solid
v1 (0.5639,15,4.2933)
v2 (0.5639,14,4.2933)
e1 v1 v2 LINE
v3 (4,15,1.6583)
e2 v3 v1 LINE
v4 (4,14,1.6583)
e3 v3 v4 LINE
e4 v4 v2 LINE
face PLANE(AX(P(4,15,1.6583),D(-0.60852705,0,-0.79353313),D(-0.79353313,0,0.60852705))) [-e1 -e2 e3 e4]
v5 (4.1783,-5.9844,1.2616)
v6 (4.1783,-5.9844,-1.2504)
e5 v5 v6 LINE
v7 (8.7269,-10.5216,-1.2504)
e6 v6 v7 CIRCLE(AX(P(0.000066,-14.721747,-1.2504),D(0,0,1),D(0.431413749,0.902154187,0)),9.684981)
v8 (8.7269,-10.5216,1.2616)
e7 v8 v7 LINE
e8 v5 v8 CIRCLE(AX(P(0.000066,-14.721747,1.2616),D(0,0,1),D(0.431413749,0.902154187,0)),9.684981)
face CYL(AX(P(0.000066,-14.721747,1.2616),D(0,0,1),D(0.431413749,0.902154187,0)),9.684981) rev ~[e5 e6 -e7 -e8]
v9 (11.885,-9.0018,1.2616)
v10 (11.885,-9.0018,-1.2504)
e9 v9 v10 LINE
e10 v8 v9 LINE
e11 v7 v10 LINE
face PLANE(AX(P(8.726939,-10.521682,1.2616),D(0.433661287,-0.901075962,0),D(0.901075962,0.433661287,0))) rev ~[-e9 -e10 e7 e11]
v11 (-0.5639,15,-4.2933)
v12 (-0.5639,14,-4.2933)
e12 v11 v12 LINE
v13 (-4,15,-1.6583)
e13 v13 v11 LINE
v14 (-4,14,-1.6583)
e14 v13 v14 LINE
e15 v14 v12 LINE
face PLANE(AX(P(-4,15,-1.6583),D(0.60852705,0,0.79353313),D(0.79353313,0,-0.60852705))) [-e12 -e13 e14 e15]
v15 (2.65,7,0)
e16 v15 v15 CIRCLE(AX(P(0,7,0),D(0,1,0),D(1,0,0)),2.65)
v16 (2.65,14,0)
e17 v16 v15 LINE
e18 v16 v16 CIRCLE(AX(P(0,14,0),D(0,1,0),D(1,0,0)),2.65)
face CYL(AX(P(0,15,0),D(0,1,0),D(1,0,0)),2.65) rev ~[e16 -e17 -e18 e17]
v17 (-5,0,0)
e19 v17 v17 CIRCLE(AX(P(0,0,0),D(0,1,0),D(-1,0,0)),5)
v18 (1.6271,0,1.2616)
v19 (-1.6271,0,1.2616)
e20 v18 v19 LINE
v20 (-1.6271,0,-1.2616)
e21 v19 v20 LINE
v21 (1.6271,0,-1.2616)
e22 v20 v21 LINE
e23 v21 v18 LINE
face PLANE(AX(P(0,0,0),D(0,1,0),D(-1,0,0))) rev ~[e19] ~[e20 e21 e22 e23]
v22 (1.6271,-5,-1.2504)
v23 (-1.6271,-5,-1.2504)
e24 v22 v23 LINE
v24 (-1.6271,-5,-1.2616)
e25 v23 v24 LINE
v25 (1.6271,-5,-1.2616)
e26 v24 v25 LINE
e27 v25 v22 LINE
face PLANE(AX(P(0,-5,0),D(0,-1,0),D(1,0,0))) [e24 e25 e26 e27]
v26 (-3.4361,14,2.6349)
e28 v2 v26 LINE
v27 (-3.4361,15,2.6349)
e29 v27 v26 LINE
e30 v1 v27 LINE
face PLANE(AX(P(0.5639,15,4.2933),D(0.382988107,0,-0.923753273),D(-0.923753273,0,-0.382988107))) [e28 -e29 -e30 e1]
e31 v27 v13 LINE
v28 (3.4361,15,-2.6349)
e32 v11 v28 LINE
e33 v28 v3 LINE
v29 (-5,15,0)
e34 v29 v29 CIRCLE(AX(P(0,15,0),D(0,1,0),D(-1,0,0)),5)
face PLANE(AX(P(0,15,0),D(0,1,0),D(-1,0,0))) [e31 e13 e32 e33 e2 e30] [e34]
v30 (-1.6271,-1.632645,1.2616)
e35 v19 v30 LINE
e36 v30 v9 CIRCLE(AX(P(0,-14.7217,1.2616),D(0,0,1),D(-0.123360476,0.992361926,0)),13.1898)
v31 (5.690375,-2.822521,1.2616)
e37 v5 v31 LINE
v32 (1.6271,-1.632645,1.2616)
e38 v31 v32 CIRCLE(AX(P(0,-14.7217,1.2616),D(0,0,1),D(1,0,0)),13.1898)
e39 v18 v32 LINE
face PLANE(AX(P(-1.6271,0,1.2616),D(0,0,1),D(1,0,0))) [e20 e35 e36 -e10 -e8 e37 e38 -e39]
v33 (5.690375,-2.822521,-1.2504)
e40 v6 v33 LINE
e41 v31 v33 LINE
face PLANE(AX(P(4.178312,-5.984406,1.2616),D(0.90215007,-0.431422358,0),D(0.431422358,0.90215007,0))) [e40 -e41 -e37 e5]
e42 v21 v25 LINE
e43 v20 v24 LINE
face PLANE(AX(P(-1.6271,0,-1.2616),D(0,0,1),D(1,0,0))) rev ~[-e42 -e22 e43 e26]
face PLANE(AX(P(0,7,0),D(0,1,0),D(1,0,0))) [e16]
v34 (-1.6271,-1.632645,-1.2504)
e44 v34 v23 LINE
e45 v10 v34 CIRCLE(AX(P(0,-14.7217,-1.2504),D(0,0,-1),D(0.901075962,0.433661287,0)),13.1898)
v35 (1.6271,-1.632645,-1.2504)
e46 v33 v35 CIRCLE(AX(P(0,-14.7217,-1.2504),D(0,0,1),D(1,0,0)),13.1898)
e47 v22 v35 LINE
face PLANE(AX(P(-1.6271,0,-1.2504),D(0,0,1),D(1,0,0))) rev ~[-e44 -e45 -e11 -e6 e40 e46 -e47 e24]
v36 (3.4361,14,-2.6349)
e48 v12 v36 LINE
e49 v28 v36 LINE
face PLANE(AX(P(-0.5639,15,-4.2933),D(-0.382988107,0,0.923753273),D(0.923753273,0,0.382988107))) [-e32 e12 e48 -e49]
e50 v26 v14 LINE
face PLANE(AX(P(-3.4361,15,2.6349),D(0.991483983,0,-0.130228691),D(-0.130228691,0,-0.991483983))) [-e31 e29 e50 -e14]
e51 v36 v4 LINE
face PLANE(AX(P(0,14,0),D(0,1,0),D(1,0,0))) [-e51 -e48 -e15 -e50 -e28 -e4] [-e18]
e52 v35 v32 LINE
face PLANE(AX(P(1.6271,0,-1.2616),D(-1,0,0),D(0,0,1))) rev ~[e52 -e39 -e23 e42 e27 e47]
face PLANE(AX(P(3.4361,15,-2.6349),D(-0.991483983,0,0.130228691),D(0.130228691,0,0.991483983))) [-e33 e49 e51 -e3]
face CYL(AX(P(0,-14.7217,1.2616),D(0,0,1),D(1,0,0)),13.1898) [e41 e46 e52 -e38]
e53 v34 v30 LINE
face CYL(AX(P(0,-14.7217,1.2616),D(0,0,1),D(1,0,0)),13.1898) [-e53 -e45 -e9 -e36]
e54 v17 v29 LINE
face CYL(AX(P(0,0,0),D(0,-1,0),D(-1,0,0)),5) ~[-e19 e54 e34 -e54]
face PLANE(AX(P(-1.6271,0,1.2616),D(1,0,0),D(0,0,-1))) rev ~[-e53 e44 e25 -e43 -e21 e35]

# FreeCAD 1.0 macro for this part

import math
import FreeCAD as App
import Part
import Sketcher
from FreeCAD import Vector
Q = App.Units.Quantity


def add_polygon(sketch, points):
    """Adds a closed chain of lines whose ends are joined by coincident constraints."""
    first, n = sketch.GeometryCount, len(points)
    for a, b in zip(points, points[1:] + points[:1]):
        sketch.addGeometry(Part.LineSegment(App.Vector(*a, 0), App.Vector(*b, 0)), False)
    for i in range(n):
        sketch.addConstraint(Sketcher.Constraint("Coincident", first + i, 2, first + (i + 1) % n, 1))

doc = App.newDocument("Part")
body = doc.addObject("PartDesign::Body", "Body")

# Sketch on XZ plane
sketch1 = body.newObject("Sketcher::SketchObject", "Sketch")
sketch1.AttachmentSupport = (doc.getObject("XZ_Plane"), [""])
sketch1.MapMode = "FlatFace"
sketch1.addGeometry(Part.Circle(Vector(0, 0, 0), Vector(0, 0, 1), 5), False)
sketch1.addConstraint([
    Sketcher.Constraint("Coincident", 0, 3, -1, 1),
    Sketcher.Constraint("Diameter", 0, Q("10 mm")),
])
pad1 = body.newObject("PartDesign::Pad", "Pad")
pad1.Profile = sketch1
pad1.Length = 15
pad1.Reversed = True

# Sketch on XZ plane
sketch2 = body.newObject("Sketcher::SketchObject", "Sketch001")
sketch2.AttachmentSupport = (doc.getObject("XZ_Plane"), [""])
sketch2.MapMode = "FlatFace"
sketch2.AttachmentOffset = App.Placement(Vector(0, 0, -15), App.Rotation())
sketch2.addGeometry(Part.Circle(Vector(0, 0, 0), Vector(0, 0, 1), 2.65), False)
sketch2.addConstraint([
    Sketcher.Constraint("Coincident", 0, 3, -1, 1),
    Sketcher.Constraint("Diameter", 0, Q("5.3 mm")),
])
pocket1 = body.newObject("PartDesign::Pocket", "Pocket")
pocket1.Profile = sketch2
pocket1.Length = 8
pocket1.Reversed = True

# Sketch on XZ plane
sketch3 = body.newObject("Sketcher::SketchObject", "Sketch002")
sketch3.AttachmentSupport = (doc.getObject("XZ_Plane"), [""])
sketch3.MapMode = "FlatFace"
add_polygon(sketch3, [(-1.6271, 1.2616), (-1.6271, -1.2616), (1.6271, -1.2616), (1.6271, 1.2616)])  # lines 0-3
sketch3.addConstraint([
    Sketcher.Constraint("Vertical", 0),
    Sketcher.Constraint("Horizontal", 1),
    Sketcher.Constraint("Vertical", 2),
    Sketcher.Constraint("Horizontal", 3),
    Sketcher.Constraint("Symmetric", 0, 2, 2, 2, -1, 1),
    Sketcher.Constraint("DistanceX", 1, 1, 1, 2, Q("3.2542 mm")),
    Sketcher.Constraint("DistanceY", 0, 2, 0, 1, Q("2.5232 mm")),
])
pad2 = body.newObject("PartDesign::Pad", "Pad001")
pad2.Profile = sketch3
pad2.Length = 5

# Sketch on XY plane
sketch4 = body.newObject("Sketcher::SketchObject", "Sketch003")
sketch4.AttachmentSupport = (doc.getObject("XY_Plane"), [""])
sketch4.MapMode = "FlatFace"
sketch4.AttachmentOffset = App.Placement(Vector(0, 0, 1.2616), App.Rotation())
sketch4.addGeometry([
    Part.ArcOfCircle(Part.Circle(Vector(0, -14.7217, 0), Vector(0, 0, 1), 13.1898), math.radians(64.44214), math.radians(385.70014)),
    Part.LineSegment(Vector(11.885, -9.0018, 0), Vector(8.726939, -10.521682, 0)),
    Part.ArcOfCircle(Part.Circle(Vector(0, -14.7217, 0), Vector(0, 0, 1), 9.684968), math.radians(64.442216), math.radians(385.700675)),
    Part.LineSegment(Vector(4.178312, -5.984406, 0), Vector(5.690375, -2.822521, 0)),
], False)
sketch4.addConstraint([
    Sketcher.Constraint("Coincident", 0, 2, 1, 1),
    Sketcher.Constraint("Coincident", 1, 2, 2, 2),
    Sketcher.Constraint("Coincident", 2, 1, 3, 1),
    Sketcher.Constraint("Coincident", 3, 2, 0, 1),
    Sketcher.Constraint("Coincident", 2, 3, 0, 3),
    Sketcher.Constraint("PointOnObject", 0, 3, -2),
    Sketcher.Constraint("Angle", 1, Q("-154.2999 deg")),
    Sketcher.Constraint("Radius", 2, Q("9.685 mm")),
    Sketcher.Constraint("Radius", 0, Q("13.1898 mm")),
    Sketcher.Constraint("DistanceY", 0, 3, 1, 2, Q("4.2 mm")),
    Sketcher.Constraint("DistanceX", 2, 1, 3, 2, Q("1.512 mm")),
    Sketcher.Constraint("DistanceY", 0, 3, -1, 1, Q("14.7217 mm")),
    Sketcher.Constraint("DistanceX", -1, 1, 2, 1, Q("4.1783 mm")),
])
pad3 = body.newObject("PartDesign::Pad", "Pad002")
pad3.Profile = sketch4
pad3.Length = 2.512
pad3.Reversed = True

# Sketch on XZ plane
sketch5 = body.newObject("Sketcher::SketchObject", "Sketch004")
sketch5.AttachmentSupport = (doc.getObject("XZ_Plane"), [""])
sketch5.MapMode = "FlatFace"
sketch5.AttachmentOffset = App.Placement(Vector(0, 0, -15), App.Rotation())
add_polygon(sketch5, [(-0.5639, -4.2933), (-4, -1.6583), (-3.4361, 2.6349), (0.5639, 4.2933), (4, 1.6583), (3.4361, -2.6349)])  # lines 0-5
sketch5.addConstraint([
    Sketcher.Constraint("Symmetric", 0, 2, 3, 2, -1, 1),
    Sketcher.Constraint("Symmetric", 1, 2, 4, 2, -1, 1),
    Sketcher.Constraint("Symmetric", 2, 2, 5, 2, -1, 1),
    Sketcher.Constraint("Equal", 0, 1),
    Sketcher.Constraint("Equal", 1, 2),
    Sketcher.Constraint("DistanceX", 0, 2, 3, 2, Q("8 mm")),
    Sketcher.Constraint("DistanceX", 1, 2, 2, 2, Q("4 mm")),
    Sketcher.Constraint("Angle", 2, Q("22.519 deg")),
    Sketcher.Constraint("DistanceX", 1, 2, -1, 1, Q("3.436 mm")),
])
pocket2 = body.newObject("PartDesign::Pocket", "Pocket001")
pocket2.Profile = sketch5
pocket2.Length = 1
pocket2.Reversed = True

doc.recompute()
